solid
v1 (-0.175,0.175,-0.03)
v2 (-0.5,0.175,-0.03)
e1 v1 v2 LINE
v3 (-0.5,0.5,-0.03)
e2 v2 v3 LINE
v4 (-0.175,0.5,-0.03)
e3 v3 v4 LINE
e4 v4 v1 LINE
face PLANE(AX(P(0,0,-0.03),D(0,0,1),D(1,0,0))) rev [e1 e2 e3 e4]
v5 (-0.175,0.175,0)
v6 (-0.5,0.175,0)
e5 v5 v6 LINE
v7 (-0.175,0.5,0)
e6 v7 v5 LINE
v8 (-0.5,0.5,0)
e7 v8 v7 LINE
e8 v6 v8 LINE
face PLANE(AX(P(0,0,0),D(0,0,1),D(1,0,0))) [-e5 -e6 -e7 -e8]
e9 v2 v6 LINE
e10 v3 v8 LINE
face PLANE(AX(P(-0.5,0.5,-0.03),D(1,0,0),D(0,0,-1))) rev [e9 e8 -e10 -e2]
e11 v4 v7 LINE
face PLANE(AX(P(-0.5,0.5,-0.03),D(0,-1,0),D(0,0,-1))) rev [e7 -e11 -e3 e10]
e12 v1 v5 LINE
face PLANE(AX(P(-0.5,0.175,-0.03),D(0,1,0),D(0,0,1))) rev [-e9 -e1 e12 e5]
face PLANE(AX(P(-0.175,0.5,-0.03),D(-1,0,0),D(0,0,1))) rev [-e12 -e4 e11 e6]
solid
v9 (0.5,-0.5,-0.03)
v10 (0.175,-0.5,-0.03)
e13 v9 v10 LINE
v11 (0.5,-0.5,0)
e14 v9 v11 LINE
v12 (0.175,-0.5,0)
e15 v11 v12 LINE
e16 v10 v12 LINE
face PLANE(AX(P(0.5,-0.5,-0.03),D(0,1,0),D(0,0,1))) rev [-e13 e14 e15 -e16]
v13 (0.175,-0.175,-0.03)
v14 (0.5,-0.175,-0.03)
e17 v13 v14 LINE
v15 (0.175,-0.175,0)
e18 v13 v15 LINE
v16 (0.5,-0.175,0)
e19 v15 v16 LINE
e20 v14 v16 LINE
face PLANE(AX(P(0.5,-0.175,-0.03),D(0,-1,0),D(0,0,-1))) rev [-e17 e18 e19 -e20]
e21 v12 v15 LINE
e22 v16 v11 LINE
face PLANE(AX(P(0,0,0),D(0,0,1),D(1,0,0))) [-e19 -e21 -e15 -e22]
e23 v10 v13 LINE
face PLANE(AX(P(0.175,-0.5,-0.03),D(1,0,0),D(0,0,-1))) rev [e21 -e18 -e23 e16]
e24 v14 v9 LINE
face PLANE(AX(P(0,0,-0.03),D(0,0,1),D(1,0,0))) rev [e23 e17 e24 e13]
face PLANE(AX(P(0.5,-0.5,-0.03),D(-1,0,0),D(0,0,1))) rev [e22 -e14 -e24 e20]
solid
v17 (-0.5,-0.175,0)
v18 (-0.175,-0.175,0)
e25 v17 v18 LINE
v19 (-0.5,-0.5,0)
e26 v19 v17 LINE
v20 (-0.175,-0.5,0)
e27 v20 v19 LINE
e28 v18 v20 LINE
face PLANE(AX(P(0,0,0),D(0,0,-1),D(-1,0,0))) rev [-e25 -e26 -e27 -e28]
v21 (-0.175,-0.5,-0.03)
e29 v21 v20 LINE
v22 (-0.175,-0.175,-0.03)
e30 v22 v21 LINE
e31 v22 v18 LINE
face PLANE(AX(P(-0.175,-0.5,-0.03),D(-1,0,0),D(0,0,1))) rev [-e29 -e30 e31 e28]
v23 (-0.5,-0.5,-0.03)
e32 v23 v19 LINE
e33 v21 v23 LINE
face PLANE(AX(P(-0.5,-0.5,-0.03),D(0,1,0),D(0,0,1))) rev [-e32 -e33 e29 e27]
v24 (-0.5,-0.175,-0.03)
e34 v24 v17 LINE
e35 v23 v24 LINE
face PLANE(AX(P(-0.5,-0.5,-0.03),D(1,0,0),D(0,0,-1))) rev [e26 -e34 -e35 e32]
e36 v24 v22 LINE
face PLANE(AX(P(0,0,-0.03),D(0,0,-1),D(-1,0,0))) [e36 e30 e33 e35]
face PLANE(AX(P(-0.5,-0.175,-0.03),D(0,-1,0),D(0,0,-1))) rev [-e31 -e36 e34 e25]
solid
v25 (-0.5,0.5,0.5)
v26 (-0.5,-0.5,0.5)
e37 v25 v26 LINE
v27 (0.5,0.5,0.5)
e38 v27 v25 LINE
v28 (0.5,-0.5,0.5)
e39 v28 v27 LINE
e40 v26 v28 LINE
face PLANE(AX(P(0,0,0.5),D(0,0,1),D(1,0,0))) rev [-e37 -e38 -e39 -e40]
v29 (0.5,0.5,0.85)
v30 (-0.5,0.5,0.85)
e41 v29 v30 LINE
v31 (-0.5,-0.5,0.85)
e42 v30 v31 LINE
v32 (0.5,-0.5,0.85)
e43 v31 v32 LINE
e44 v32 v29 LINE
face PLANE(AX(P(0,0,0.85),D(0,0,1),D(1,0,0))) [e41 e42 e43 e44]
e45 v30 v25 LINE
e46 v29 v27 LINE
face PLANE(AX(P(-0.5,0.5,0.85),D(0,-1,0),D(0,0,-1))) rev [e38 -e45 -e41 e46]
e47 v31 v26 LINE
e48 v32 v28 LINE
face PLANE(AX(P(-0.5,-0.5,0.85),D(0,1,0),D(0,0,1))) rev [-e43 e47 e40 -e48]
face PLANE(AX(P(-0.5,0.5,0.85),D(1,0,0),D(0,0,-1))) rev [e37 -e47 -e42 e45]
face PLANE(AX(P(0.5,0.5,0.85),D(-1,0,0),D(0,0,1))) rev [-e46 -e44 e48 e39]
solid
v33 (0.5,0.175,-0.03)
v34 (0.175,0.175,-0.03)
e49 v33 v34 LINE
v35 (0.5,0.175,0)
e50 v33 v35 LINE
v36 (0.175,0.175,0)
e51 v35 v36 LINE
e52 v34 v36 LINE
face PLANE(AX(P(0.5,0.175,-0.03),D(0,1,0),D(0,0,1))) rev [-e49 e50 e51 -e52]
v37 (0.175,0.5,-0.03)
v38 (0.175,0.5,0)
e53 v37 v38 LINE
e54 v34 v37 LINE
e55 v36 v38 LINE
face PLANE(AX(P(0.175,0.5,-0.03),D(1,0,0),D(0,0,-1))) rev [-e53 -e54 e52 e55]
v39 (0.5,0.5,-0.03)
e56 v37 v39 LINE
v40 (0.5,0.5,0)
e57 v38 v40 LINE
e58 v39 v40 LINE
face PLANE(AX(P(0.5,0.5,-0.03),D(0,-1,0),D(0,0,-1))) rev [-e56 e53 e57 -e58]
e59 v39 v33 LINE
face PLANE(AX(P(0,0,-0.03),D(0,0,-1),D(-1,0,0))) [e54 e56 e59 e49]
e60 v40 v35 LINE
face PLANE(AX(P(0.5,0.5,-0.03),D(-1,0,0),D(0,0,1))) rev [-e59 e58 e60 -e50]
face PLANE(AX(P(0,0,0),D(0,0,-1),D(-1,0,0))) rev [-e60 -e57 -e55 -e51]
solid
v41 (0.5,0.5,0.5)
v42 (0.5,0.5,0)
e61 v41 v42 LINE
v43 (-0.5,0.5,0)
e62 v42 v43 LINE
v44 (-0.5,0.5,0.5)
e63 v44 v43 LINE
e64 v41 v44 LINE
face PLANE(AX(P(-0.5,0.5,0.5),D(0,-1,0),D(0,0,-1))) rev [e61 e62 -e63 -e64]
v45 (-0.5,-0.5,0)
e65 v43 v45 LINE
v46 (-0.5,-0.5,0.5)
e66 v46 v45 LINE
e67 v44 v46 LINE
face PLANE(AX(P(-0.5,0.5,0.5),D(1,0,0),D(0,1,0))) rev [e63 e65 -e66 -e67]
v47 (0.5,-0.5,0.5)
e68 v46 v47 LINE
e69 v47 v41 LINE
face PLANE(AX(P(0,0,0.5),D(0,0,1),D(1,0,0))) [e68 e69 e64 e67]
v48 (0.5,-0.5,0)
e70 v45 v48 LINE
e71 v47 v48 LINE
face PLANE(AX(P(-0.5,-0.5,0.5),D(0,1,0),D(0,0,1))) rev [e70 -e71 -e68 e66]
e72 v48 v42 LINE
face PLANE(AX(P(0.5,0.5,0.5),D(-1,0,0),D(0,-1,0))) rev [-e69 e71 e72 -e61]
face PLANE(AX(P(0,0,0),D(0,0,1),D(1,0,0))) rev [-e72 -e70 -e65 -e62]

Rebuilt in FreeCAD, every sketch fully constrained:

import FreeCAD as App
import Part
import Sketcher
from FreeCAD import Vector
Q = App.Units.Quantity


def add_polygon(sketch, points):
    """Adds a closed chain of lines whose ends are joined by coincident constraints."""
    first, n = sketch.GeometryCount, len(points)
    for a, b in zip(points, points[1:] + points[:1]):
        sketch.addGeometry(Part.LineSegment(App.Vector(*a, 0), App.Vector(*b, 0)), False)
    for i in range(n):
        sketch.addConstraint(Sketcher.Constraint("Coincident", first + i, 2, first + (i + 1) % n, 1))

doc = App.newDocument("Part")
body = doc.addObject("PartDesign::Body", "Body")

# Sketch on XY plane
sketch1 = doc.addObject("Sketcher::SketchObject", "Sketch")
body.addObject(sketch1)
sketch1.AttachmentSupport = (doc.XY_Plane, [""])
sketch1.MapMode = "FlatFace"
add_polygon(sketch1, [(-0.5, 0.5), (-0.5, -0.5), (0.5, -0.5), (0.5, 0.5)])  # lines 0-3
sketch1.addConstraint([
    Sketcher.Constraint("Vertical", 0),
    Sketcher.Constraint("Horizontal", 1),
    Sketcher.Constraint("Vertical", 2),
    Sketcher.Constraint("Horizontal", 3),
    Sketcher.Constraint("Symmetric", 0, 2, 2, 2, -1, 1),
    Sketcher.Constraint("Equal", 3, 0),
    Sketcher.Constraint("DistanceX", 1, 1, 1, 2, Q("1 mm")),
])
pad1 = doc.addObject("PartDesign::Pad", "Pad")
body.addObject(pad1)
pad1.Profile = sketch1
pad1.Length = 0.5
body2 = doc.addObject("PartDesign::Body", "Body001")

# Sketch on XY plane
sketch2 = doc.addObject("Sketcher::SketchObject", "Sketch001")
body2.addObject(sketch2)
sketch2.AttachmentSupport = (doc.getObject("XY_Plane001"), [""])
sketch2.MapMode = "FlatFace"
add_polygon(sketch2, [(0.5, 0.5), (0.5, 0.17), (0.17, 0.17), (0.17, 0.5)])  # lines 0-3
sketch2.addConstraint([
    Sketcher.Constraint("Vertical", 0),
    Sketcher.Constraint("Horizontal", 1),
    Sketcher.Constraint("Vertical", 2),
    Sketcher.Constraint("Horizontal", 3),
    Sketcher.Constraint("Equal", 3, 0),
    Sketcher.Constraint("DistanceX", -1, 1, 0, 2, Q("0.5 mm")),
    Sketcher.Constraint("DistanceY", -1, 1, 2, 2, Q("0.5 mm")),
    Sketcher.Constraint("DistanceX", 1, 2, 1, 1, Q("0.325 mm")),
])
pad2 = doc.addObject("PartDesign::Pad", "Pad001")
body2.addObject(pad2)
pad2.Profile = sketch2
pad2.Length = 0.03
pad2.Reversed = True
body3 = doc.addObject("PartDesign::Body", "Body002")

# Sketch on XY plane
sketch3 = doc.addObject("Sketcher::SketchObject", "Sketch002")
body3.addObject(sketch3)
sketch3.AttachmentSupport = (doc.getObject("XY_Plane002"), [""])
sketch3.MapMode = "FlatFace"
add_polygon(sketch3, [(-0.17, 0.5), (-0.17, 0.17), (-0.5, 0.17), (-0.5, 0.5)])  # lines 0-3
sketch3.addConstraint([
    Sketcher.Constraint("Vertical", 0),
    Sketcher.Constraint("Horizontal", 1),
    Sketcher.Constraint("Vertical", 2),
    Sketcher.Constraint("Horizontal", 3),
    Sketcher.Constraint("Equal", 3, 0),
    Sketcher.Constraint("DistanceX", 1, 2, -1, 1, Q("0.5 mm")),
    Sketcher.Constraint("DistanceY", -1, 1, 2, 2, Q("0.5 mm")),
    Sketcher.Constraint("DistanceX", 1, 2, 1, 1, Q("0.325 mm")),
])
pad3 = doc.addObject("PartDesign::Pad", "Pad002")
body3.addObject(pad3)
pad3.Profile = sketch3
pad3.Length = 0.03
pad3.Reversed = True
body4 = doc.addObject("PartDesign::Body", "Body003")

# Sketch on XY plane
sketch4 = doc.addObject("Sketcher::SketchObject", "Sketch003")
body4.addObject(sketch4)
sketch4.AttachmentSupport = (doc.getObject("XY_Plane003"), [""])
sketch4.MapMode = "FlatFace"
add_polygon(sketch4, [(0.5, -0.17), (0.5, -0.5), (0.17, -0.5), (0.17, -0.17)])  # lines 0-3
sketch4.addConstraint([
    Sketcher.Constraint("Vertical", 0),
    Sketcher.Constraint("Horizontal", 1),
    Sketcher.Constraint("Vertical", 2),
    Sketcher.Constraint("Horizontal", 3),
    Sketcher.Constraint("Equal", 3, 0),
    Sketcher.Constraint("DistanceX", -1, 1, 0, 2, Q("0.5 mm")),
    Sketcher.Constraint("DistanceY", 0, 2, -1, 1, Q("0.5 mm")),
    Sketcher.Constraint("DistanceX", 1, 2, 1, 1, Q("0.325 mm")),
])
pad4 = doc.addObject("PartDesign::Pad", "Pad003")
body4.addObject(pad4)
pad4.Profile = sketch4
pad4.Length = 0.03
pad4.Reversed = True
body5 = doc.addObject("PartDesign::Body", "Body004")

# Sketch on XY plane
sketch5 = doc.addObject("Sketcher::SketchObject", "Sketch004")
body5.addObject(sketch5)
sketch5.AttachmentSupport = (doc.getObject("XY_Plane004"), [""])
sketch5.MapMode = "FlatFace"
add_polygon(sketch5, [(-0.17, -0.17), (-0.17, -0.5), (-0.5, -0.5), (-0.5, -0.17)])  # lines 0-3
sketch5.addConstraint([
    Sketcher.Constraint("Vertical", 0),
    Sketcher.Constraint("Horizontal", 1),
    Sketcher.Constraint("Vertical", 2),
    Sketcher.Constraint("Horizontal", 3),
    Sketcher.Constraint("Equal", 3, 0),
    Sketcher.Constraint("DistanceY", 0, 2, -1, 1, Q("0.5 mm")),
    Sketcher.Constraint("DistanceX", 1, 2, -1, 1, Q("0.5 mm")),
    Sketcher.Constraint("DistanceX", 1, 2, 1, 1, Q("0.325 mm")),
])
pad5 = doc.addObject("PartDesign::Pad", "Pad004")
body5.addObject(pad5)
pad5.Profile = sketch5
pad5.Length = 0.03
pad5.Reversed = True
body6 = doc.addObject("PartDesign::Body", "Body005")

# Sketch on XY plane
sketch6 = doc.addObject("Sketcher::SketchObject", "Sketch005")
body6.addObject(sketch6)
sketch6.AttachmentSupport = (doc.getObject("XY_Plane005"), [""])
sketch6.MapMode = "FlatFace"
sketch6.AttachmentOffset = App.Placement(Vector(0, 0, 0.5), App.Rotation())
add_polygon(sketch6, [(-0.5, 0.5), (-0.5, -0.5), (0.5, -0.5), (0.5, 0.5)])  # lines 0-3
sketch6.addConstraint([
    Sketcher.Constraint("Vertical", 0),
    Sketcher.Constraint("Horizontal", 1),
    Sketcher.Constraint("Vertical", 2),
    Sketcher.Constraint("Horizontal", 3),
    Sketcher.Constraint("Symmetric", 0, 2, 2, 2, -1, 1),
    Sketcher.Constraint("Equal", 3, 0),
    Sketcher.Constraint("DistanceX", 1, 1, 1, 2, Q("1 mm")),
])
pad6 = doc.addObject("PartDesign::Pad", "Pad005")
body6.addObject(pad6)
pad6.Profile = sketch6
pad6.Length = 0.35

doc.recompute()
